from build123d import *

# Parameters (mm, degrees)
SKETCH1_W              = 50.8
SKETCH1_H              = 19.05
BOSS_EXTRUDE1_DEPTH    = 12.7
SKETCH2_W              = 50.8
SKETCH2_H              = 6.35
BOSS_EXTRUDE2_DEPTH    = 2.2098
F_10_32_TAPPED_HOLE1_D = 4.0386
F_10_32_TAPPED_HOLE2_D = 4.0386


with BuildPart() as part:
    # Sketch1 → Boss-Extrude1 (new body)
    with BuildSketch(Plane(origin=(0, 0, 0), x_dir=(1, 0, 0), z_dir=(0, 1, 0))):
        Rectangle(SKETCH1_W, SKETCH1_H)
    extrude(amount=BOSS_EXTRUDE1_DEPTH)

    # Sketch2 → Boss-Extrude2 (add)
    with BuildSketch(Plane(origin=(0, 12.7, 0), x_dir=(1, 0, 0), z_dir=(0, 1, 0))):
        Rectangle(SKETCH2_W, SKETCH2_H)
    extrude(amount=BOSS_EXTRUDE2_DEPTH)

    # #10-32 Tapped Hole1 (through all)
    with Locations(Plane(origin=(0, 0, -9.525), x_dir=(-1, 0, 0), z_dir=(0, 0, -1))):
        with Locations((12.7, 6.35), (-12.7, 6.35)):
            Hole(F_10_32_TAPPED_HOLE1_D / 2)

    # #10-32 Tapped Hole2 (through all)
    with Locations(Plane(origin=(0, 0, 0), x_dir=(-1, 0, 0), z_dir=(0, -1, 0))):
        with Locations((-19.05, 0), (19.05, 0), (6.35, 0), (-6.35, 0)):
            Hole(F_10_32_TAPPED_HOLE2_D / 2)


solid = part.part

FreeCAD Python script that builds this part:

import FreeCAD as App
import Part
import Sketcher

V = App.Vector
Q = App.Units.Quantity


def add_polygon(sketch, points):
    """Adds a closed chain of lines whose ends are joined by coincident constraints."""
    first, n = sketch.GeometryCount, len(points)
    for a, b in zip(points, points[1:] + points[:1]):
        sketch.addGeometry(Part.LineSegment(App.Vector(*a, 0), App.Vector(*b, 0)), False)
    for i in range(n):
        sketch.addConstraint(Sketcher.Constraint("Coincident", first + i, 2, first + (i + 1) % n, 1))

doc = App.newDocument("Part")
body = doc.addObject("PartDesign::Body", "Body")

# Sketch on XZ plane
sketch1 = body.newObject("Sketcher::SketchObject", "Sketch")
sketch1.AttachmentSupport = (doc.getObject("XZ_Plane"), [""])
sketch1.MapMode = "FlatFace"
add_polygon(sketch1, [(-25, -10), (-25, 10), (25, 10), (25, -10)])  # lines 0-3
sketch1.addConstraint(Sketcher.Constraint("Vertical", 0))
sketch1.addConstraint(Sketcher.Constraint("Horizontal", 1))
sketch1.addConstraint(Sketcher.Constraint("Vertical", 2))
sketch1.addConstraint(Sketcher.Constraint("Horizontal", 3))
sketch1.addConstraint(Sketcher.Constraint("Symmetric", 0, 2, 2, 2, -1, 1))
sketch1.addConstraint(Sketcher.Constraint("DistanceX", 1, 1, 1, 2, Q("2 in")))
sketch1.addConstraint(Sketcher.Constraint("DistanceY", 0, 1, 0, 2, Q("0.75 in")))
pad1 = body.newObject("PartDesign::Pad", "Pad")
pad1.Profile = sketch1
pad1.Length = Q("0.5 in")
pad1.Reversed = True

# Sketch on XZ plane
sketch2 = body.newObject("Sketcher::SketchObject", "Sketch001")
sketch2.AttachmentSupport = (doc.getObject("XZ_Plane"), [""])
sketch2.MapMode = "FlatFace"
sketch2.AttachmentOffset = App.Placement(V(0, 0, -0.5 * 25.4), App.Rotation())
add_polygon(sketch2, [(-25, -3), (-25, 3), (25, 3), (25, -3)])  # lines 0-3
sketch2.addConstraint(Sketcher.Constraint("Vertical", 0))
sketch2.addConstraint(Sketcher.Constraint("Horizontal", 1))
sketch2.addConstraint(Sketcher.Constraint("Vertical", 2))
sketch2.addConstraint(Sketcher.Constraint("Horizontal", 3))
sketch2.addConstraint(Sketcher.Constraint("Symmetric", 0, 2, 2, 2, -1, 1))
sketch2.addConstraint(Sketcher.Constraint("DistanceX", 1, 1, 1, 2, Q("2 in")))
sketch2.addConstraint(Sketcher.Constraint("DistanceY", 0, 1, 0, 2, Q("0.25 in")))
pad2 = body.newObject("PartDesign::Pad", "Pad001")
pad2.Profile = sketch2
pad2.Length = Q("0.087 in")
pad2.Reversed = True

# Sketch on XY plane
sketch3 = body.newObject("Sketcher::SketchObject", "Sketch002")
sketch3.AttachmentSupport = (doc.getObject("XY_Plane"), [""])
sketch3.MapMode = "FlatFace"
sketch3.AttachmentOffset = App.Placement(V(0, 0, -0.375 * 25.4), App.Rotation())
sketch3.addGeometry(Part.Circle(V(-12.7, 6.3, 0), V(0, 0, 1), 2), False)
sketch3.addGeometry(Part.Circle(V(12.7, 6.3, 0), V(0, 0, 1), 2), False)
sketch3.addConstraint(Sketcher.Constraint("Equal", 0, 1))
sketch3.addConstraint(Sketcher.Constraint("Symmetric", 0, 3, 1, 3, -2))
sketch3.addConstraint(Sketcher.Constraint("Diameter", 0, Q("0.159 in")))
sketch3.addConstraint(Sketcher.Constraint("DistanceX", 0, 3, 1, 3, Q("1 in")))
sketch3.addConstraint(Sketcher.Constraint("DistanceY", -1, 1, 0, 3, Q("0.25 in")))
doc.recompute()
hole = body.newObject("PartDesign::Hole", "Hole")
hole.Profile = sketch3
hole.ThreadType = "None"
hole.Diameter = Q("0.159 in")
hole.DepthType = "ThroughAll"
hole.Reversed = True

# Sketch on XZ plane
sketch4 = body.newObject("Sketcher::SketchObject", "Sketch003")
sketch4.AttachmentSupport = (doc.getObject("XZ_Plane"), [""])
sketch4.MapMode = "FlatFace"
sketch4.addGeometry(Part.Circle(V(19.1, 0, 0), V(0, 0, 1), 2), False)
sketch4.addGeometry(Part.Circle(V(-19.1, 0, 0), V(0, 0, 1), 2), False)
sketch4.addGeometry(Part.Circle(V(-6.3, 0, 0), V(0, 0, 1), 2), False)
sketch4.addGeometry(Part.Circle(V(6.3, 0, 0), V(0, 0, 1), 2), False)
sketch4.addConstraint(Sketcher.Constraint("Equal", 0, 1))
sketch4.addConstraint(Sketcher.Constraint("Equal", 1, 2))
sketch4.addConstraint(Sketcher.Constraint("Equal", 2, 3))
sketch4.addConstraint(Sketcher.Constraint("Symmetric", 0, 3, 1, 3, -1, 1))
sketch4.addConstraint(Sketcher.Constraint("Symmetric", 2, 3, 3, 3, -1, 1))
sketch4.addConstraint(Sketcher.Constraint("PointOnObject", 0, 3, -1))
sketch4.addConstraint(Sketcher.Constraint("PointOnObject", 2, 3, -1))
sketch4.addConstraint(Sketcher.Constraint("Diameter", 0, Q("0.159 in")))
sketch4.addConstraint(Sketcher.Constraint("DistanceX", 2, 3, 0, 3, Q("1 in")))
sketch4.addConstraint(Sketcher.Constraint("DistanceX", 1, 3, 0, 3, Q("1.5 in")))
doc.recompute()
hole2 = body.newObject("PartDesign::Hole", "Hole001")
hole2.Profile = sketch4
hole2.ThreadType = "None"
hole2.Diameter = Q("0.159 in")
hole2.DepthType = "ThroughAll"

doc.recompute()
